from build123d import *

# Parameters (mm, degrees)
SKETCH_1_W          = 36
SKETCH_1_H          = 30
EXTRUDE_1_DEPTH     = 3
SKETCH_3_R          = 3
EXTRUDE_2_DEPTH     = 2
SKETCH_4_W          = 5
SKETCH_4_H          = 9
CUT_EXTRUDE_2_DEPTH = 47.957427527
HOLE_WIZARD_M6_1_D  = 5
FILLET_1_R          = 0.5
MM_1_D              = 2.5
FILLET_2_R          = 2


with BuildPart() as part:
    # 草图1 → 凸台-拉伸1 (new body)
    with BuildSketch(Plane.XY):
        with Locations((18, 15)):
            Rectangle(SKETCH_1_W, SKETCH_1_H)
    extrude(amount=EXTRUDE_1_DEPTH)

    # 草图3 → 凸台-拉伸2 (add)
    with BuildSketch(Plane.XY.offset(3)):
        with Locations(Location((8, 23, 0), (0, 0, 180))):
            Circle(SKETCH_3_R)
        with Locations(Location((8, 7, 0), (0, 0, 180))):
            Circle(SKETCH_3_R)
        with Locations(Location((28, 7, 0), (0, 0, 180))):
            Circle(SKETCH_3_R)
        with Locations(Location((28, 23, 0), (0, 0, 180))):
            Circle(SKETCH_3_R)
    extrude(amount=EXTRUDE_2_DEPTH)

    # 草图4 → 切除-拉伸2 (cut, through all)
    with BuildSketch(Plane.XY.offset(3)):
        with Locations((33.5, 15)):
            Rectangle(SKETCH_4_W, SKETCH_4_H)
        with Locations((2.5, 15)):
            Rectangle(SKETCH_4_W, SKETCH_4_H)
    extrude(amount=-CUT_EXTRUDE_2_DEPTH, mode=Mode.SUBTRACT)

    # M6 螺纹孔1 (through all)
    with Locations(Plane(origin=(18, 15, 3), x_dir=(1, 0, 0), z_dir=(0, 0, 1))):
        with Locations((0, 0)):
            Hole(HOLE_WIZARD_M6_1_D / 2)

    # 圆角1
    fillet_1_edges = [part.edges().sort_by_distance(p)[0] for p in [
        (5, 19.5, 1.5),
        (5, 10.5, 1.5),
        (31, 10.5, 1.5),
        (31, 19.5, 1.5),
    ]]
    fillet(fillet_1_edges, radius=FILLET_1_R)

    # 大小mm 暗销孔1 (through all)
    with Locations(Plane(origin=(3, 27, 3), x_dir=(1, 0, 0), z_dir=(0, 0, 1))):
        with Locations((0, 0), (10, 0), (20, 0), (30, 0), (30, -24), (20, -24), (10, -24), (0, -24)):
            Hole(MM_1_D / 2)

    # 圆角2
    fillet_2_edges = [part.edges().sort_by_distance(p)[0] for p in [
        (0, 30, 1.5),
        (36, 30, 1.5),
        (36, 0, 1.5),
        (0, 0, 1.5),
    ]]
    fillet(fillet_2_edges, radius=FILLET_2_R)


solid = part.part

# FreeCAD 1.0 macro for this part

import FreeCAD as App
import Part
import Sketcher

V = App.Vector


def edges_at(feature, points):
    """Names of the edges that pass closest to the given points."""
    edges = feature.Shape.Edges
    near = lambda p: min(range(len(edges)), key=lambda i: edges[i].distToShape(Part.Vertex(*p))[0])
    return sorted({f"Edge{near(p) + 1}" for p in points})

doc = App.newDocument("Part")
body = doc.addObject("PartDesign::Body", "Body")

# Sketch on XY plane
sketch1 = body.newObject("Sketcher::SketchObject", "Sketch")
sketch1.AttachmentSupport = (doc.getObject("XY_Plane"), [""])
sketch1.MapMode = "FlatFace"
sketch1.addGeometry(Part.LineSegment(V(0, 30, 0), V(0, 0, 0)), False)
sketch1.addGeometry(Part.LineSegment(V(0, 0, 0), V(36, 0, 0)), False)
sketch1.addGeometry(Part.LineSegment(V(36, 0, 0), V(36, 30, 0)), False)
sketch1.addGeometry(Part.LineSegment(V(36, 30, 0), V(0, 30, 0)), False)
sketch1.addConstraint(Sketcher.Constraint("Coincident", 0, 2, 1, 1))
sketch1.addConstraint(Sketcher.Constraint("Coincident", 1, 2, 2, 1))
sketch1.addConstraint(Sketcher.Constraint("Coincident", 2, 2, 3, 1))
sketch1.addConstraint(Sketcher.Constraint("Coincident", 3, 2, 0, 1))
sketch1.addConstraint(Sketcher.Constraint("Vertical", 0))
sketch1.addConstraint(Sketcher.Constraint("Horizontal", 1))
sketch1.addConstraint(Sketcher.Constraint("Vertical", 2))
sketch1.addConstraint(Sketcher.Constraint("Horizontal", 3))
sketch1.addConstraint(Sketcher.Constraint("Coincident", 0, 2, -1, 1))
sketch1.addConstraint(Sketcher.Constraint("DistanceX", 1, 1, 1, 2, 36.0))
sketch1.addConstraint(Sketcher.Constraint("DistanceY", 0, 2, 0, 1, 30.0))
pad1 = body.newObject("PartDesign::Pad", "Pad")
pad1.Profile = sketch1
pad1.Length = 3

# Sketch on XY plane
sketch2 = body.newObject("Sketcher::SketchObject", "Sketch001")
sketch2.AttachmentSupport = (doc.getObject("XY_Plane"), [""])
sketch2.MapMode = "FlatFace"
sketch2.AttachmentOffset = App.Placement(V(0, 0, 3), App.Rotation())
sketch2.addGeometry(Part.Circle(V(8, 23, 0), V(0, 0, 1), 3), False)
sketch2.addGeometry(Part.Circle(V(8, 7, 0), V(0, 0, 1), 3), False)
sketch2.addGeometry(Part.Circle(V(28, 7, 0), V(0, 0, 1), 3), False)
sketch2.addGeometry(Part.Circle(V(28, 23, 0), V(0, 0, 1), 3), False)
sketch2.addConstraint(Sketcher.Constraint("Equal", 0, 1))
sketch2.addConstraint(Sketcher.Constraint("Equal", 1, 2))
sketch2.addConstraint(Sketcher.Constraint("Equal", 2, 3))
sketch2.addConstraint(Sketcher.Constraint("Horizontal", 1, 3, 2, 3))
sketch2.addConstraint(Sketcher.Constraint("Horizontal", 0, 3, 3, 3))
sketch2.addConstraint(Sketcher.Constraint("Vertical", 0, 3, 1, 3))
sketch2.addConstraint(Sketcher.Constraint("Vertical", 2, 3, 3, 3))
sketch2.addConstraint(Sketcher.Constraint("Diameter", 0, 6.0))
sketch2.addConstraint(Sketcher.Constraint("DistanceX", -1, 1, 0, 3, 8.0))
sketch2.addConstraint(Sketcher.Constraint("DistanceY", -1, 1, 0, 3, 23.0))
sketch2.addConstraint(Sketcher.Constraint("DistanceY", -1, 1, 1, 3, 7.0))
sketch2.addConstraint(Sketcher.Constraint("DistanceX", -1, 1, 2, 3, 28.0))
pad2 = body.newObject("PartDesign::Pad", "Pad001")
pad2.Profile = sketch2
pad2.Length = 2

# Sketch on XY plane
sketch3 = body.newObject("Sketcher::SketchObject", "Sketch002")
sketch3.AttachmentSupport = (doc.getObject("XY_Plane"), [""])
sketch3.MapMode = "FlatFace"
sketch3.AttachmentOffset = App.Placement(V(0, 0, 3), App.Rotation())
sketch3.addGeometry(Part.LineSegment(V(31, 20, 0), V(31, 10, 0)), False)
sketch3.addGeometry(Part.LineSegment(V(31, 10, 0), V(36, 10, 0)), False)
sketch3.addGeometry(Part.LineSegment(V(36, 10, 0), V(36, 20, 0)), False)
sketch3.addGeometry(Part.LineSegment(V(36, 20, 0), V(31, 20, 0)), False)
sketch3.addGeometry(Part.LineSegment(V(0, 20, 0), V(0, 10, 0)), False)
sketch3.addGeometry(Part.LineSegment(V(0, 10, 0), V(5, 10, 0)), False)
sketch3.addGeometry(Part.LineSegment(V(5, 10, 0), V(5, 20, 0)), False)
sketch3.addGeometry(Part.LineSegment(V(5, 20, 0), V(0, 20, 0)), False)
sketch3.addConstraint(Sketcher.Constraint("Coincident", 0, 2, 1, 1))
sketch3.addConstraint(Sketcher.Constraint("Coincident", 1, 2, 2, 1))
sketch3.addConstraint(Sketcher.Constraint("Coincident", 2, 2, 3, 1))
sketch3.addConstraint(Sketcher.Constraint("Coincident", 3, 2, 0, 1))
sketch3.addConstraint(Sketcher.Constraint("Coincident", 4, 2, 5, 1))
sketch3.addConstraint(Sketcher.Constraint("Coincident", 5, 2, 6, 1))
sketch3.addConstraint(Sketcher.Constraint("Coincident", 6, 2, 7, 1))
sketch3.addConstraint(Sketcher.Constraint("Coincident", 7, 2, 4, 1))
sketch3.addConstraint(Sketcher.Constraint("Vertical", 0))
sketch3.addConstraint(Sketcher.Constraint("Horizontal", 1))
sketch3.addConstraint(Sketcher.Constraint("Vertical", 2))
sketch3.addConstraint(Sketcher.Constraint("Horizontal", 3))
sketch3.addConstraint(Sketcher.Constraint("Vertical", 4))
sketch3.addConstraint(Sketcher.Constraint("Horizontal", 5))
sketch3.addConstraint(Sketcher.Constraint("Vertical", 6))
sketch3.addConstraint(Sketcher.Constraint("Horizontal", 7))
sketch3.addConstraint(Sketcher.Constraint("PointOnObject", 4, 2, -2))
sketch3.addConstraint(Sketcher.Constraint("Horizontal", 1, 2, 4, 2))
sketch3.addConstraint(Sketcher.Constraint("Horizontal", 3, 2, 6, 2))
sketch3.addConstraint(Sketcher.Constraint("Equal", 3, 5))
sketch3.addConstraint(Sketcher.Constraint("DistanceX", 1, 1, 1, 2, 5.0))
sketch3.addConstraint(Sketcher.Constraint("DistanceY", 0, 2, 0, 1, 9.0))
sketch3.addConstraint(Sketcher.Constraint("DistanceX", -1, 1, 0, 2, 31.0))
sketch3.addConstraint(Sketcher.Constraint("DistanceY", -1, 1, 0, 2, 10.5))
pocket1 = body.newObject("PartDesign::Pocket", "Pocket")
pocket1.Profile = sketch3
pocket1.Type = "ThroughAll"

# Sketch on XY plane
sketch4 = body.newObject("Sketcher::SketchObject", "Sketch003")
sketch4.AttachmentSupport = (doc.getObject("XY_Plane"), [""])
sketch4.MapMode = "FlatFace"
sketch4.AttachmentOffset = App.Placement(V(0, 0, 3), App.Rotation())
sketch4.addGeometry(Part.Circle(V(18, 15, 0), V(0, 0, 1), 2.5), False)
sketch4.addConstraint(Sketcher.Constraint("Diameter", 0, 5.0))
sketch4.addConstraint(Sketcher.Constraint("DistanceX", -1, 1, 0, 3, 18.0))
sketch4.addConstraint(Sketcher.Constraint("DistanceY", -1, 1, 0, 3, 15.0))
doc.recompute()
hole = body.newObject("PartDesign::Hole", "Hole")
hole.Profile = sketch4
hole.ThreadType = "None"
hole.Diameter = 5
hole.DepthType = "ThroughAll"
doc.recompute()

fillet = body.newObject("PartDesign::Fillet", "Fillet")
fillet.Base = (hole, edges_at(hole, [
    (5, 19.5, 1.5),
    (5, 10.5, 1.5),
    (31, 10.5, 1.5),
    (31, 19.5, 1.5),
]))
fillet.Radius = 0.5

# Sketch on XY plane
sketch5 = body.newObject("Sketcher::SketchObject", "Sketch004")
sketch5.AttachmentSupport = (doc.getObject("XY_Plane"), [""])
sketch5.MapMode = "FlatFace"
sketch5.AttachmentOffset = App.Placement(V(0, 0, 3), App.Rotation())
sketch5.addGeometry(Part.Circle(V(3, 27, 0), V(0, 0, 1), 1.2), False)
sketch5.addGeometry(Part.Circle(V(13, 27, 0), V(0, 0, 1), 1.2), False)
sketch5.addGeometry(Part.Circle(V(23, 27, 0), V(0, 0, 1), 1.2), False)
sketch5.addGeometry(Part.Circle(V(33, 27, 0), V(0, 0, 1), 1.2), False)
sketch5.addGeometry(Part.Circle(V(33, 3, 0), V(0, 0, 1), 1.2), False)
sketch5.addGeometry(Part.Circle(V(23, 3, 0), V(0, 0, 1), 1.2), False)
sketch5.addGeometry(Part.Circle(V(13, 3, 0), V(0, 0, 1), 1.2), False)
sketch5.addGeometry(Part.Circle(V(3, 3, 0), V(0, 0, 1), 1.2), False)
sketch5.addConstraint(Sketcher.Constraint("Equal", 0, 1))
sketch5.addConstraint(Sketcher.Constraint("Equal", 1, 2))
sketch5.addConstraint(Sketcher.Constraint("Equal", 2, 3))
sketch5.addConstraint(Sketcher.Constraint("Equal", 3, 4))
sketch5.addConstraint(Sketcher.Constraint("Equal", 4, 5))
sketch5.addConstraint(Sketcher.Constraint("Equal", 5, 6))
sketch5.addConstraint(Sketcher.Constraint("Equal", 6, 7))
sketch5.addConstraint(Sketcher.Constraint("Horizontal", 0, 3, 1, 3))
sketch5.addConstraint(Sketcher.Constraint("Horizontal", 1, 3, 2, 3))
sketch5.addConstraint(Sketcher.Constraint("Horizontal", 2, 3, 3, 3))
sketch5.addConstraint(Sketcher.Constraint("Horizontal", 4, 3, 5, 3))
sketch5.addConstraint(Sketcher.Constraint("Horizontal", 5, 3, 6, 3))
sketch5.addConstraint(Sketcher.Constraint("Horizontal", 6, 3, 7, 3))
sketch5.addConstraint(Sketcher.Constraint("Vertical", 3, 3, 4, 3))
sketch5.addConstraint(Sketcher.Constraint("Vertical", 2, 3, 5, 3))
sketch5.addConstraint(Sketcher.Constraint("Vertical", 1, 3, 6, 3))
sketch5.addConstraint(Sketcher.Constraint("Vertical", 0, 3, 7, 3))
sketch5.addConstraint(Sketcher.Constraint("Diameter", 0, 2.5))
sketch5.addConstraint(Sketcher.Constraint("DistanceX", -1, 1, 0, 3, 3.0))
sketch5.addConstraint(Sketcher.Constraint("DistanceY", -1, 1, 0, 3, 27.0))
sketch5.addConstraint(Sketcher.Constraint("DistanceX", -1, 1, 1, 3, 13.0))
sketch5.addConstraint(Sketcher.Constraint("DistanceX", -1, 1, 2, 3, 23.0))
sketch5.addConstraint(Sketcher.Constraint("DistanceX", -1, 1, 3, 3, 33.0))
sketch5.addConstraint(Sketcher.Constraint("DistanceY", -1, 1, 4, 3, 3.0))
doc.recompute()
hole2 = body.newObject("PartDesign::Hole", "Hole001")
hole2.Profile = sketch5
hole2.ThreadType = "None"
hole2.Diameter = 2.5
hole2.DepthType = "ThroughAll"
doc.recompute()

fillet2 = body.newObject("PartDesign::Fillet", "Fillet001")
fillet2.Base = (hole2, edges_at(hole2, [
    (0, 30, 1.5),
    (36, 30, 1.5),
    (36, 0, 1.5),
    (0, 0, 1.5),
]))
fillet2.Radius = 2

doc.recompute()
